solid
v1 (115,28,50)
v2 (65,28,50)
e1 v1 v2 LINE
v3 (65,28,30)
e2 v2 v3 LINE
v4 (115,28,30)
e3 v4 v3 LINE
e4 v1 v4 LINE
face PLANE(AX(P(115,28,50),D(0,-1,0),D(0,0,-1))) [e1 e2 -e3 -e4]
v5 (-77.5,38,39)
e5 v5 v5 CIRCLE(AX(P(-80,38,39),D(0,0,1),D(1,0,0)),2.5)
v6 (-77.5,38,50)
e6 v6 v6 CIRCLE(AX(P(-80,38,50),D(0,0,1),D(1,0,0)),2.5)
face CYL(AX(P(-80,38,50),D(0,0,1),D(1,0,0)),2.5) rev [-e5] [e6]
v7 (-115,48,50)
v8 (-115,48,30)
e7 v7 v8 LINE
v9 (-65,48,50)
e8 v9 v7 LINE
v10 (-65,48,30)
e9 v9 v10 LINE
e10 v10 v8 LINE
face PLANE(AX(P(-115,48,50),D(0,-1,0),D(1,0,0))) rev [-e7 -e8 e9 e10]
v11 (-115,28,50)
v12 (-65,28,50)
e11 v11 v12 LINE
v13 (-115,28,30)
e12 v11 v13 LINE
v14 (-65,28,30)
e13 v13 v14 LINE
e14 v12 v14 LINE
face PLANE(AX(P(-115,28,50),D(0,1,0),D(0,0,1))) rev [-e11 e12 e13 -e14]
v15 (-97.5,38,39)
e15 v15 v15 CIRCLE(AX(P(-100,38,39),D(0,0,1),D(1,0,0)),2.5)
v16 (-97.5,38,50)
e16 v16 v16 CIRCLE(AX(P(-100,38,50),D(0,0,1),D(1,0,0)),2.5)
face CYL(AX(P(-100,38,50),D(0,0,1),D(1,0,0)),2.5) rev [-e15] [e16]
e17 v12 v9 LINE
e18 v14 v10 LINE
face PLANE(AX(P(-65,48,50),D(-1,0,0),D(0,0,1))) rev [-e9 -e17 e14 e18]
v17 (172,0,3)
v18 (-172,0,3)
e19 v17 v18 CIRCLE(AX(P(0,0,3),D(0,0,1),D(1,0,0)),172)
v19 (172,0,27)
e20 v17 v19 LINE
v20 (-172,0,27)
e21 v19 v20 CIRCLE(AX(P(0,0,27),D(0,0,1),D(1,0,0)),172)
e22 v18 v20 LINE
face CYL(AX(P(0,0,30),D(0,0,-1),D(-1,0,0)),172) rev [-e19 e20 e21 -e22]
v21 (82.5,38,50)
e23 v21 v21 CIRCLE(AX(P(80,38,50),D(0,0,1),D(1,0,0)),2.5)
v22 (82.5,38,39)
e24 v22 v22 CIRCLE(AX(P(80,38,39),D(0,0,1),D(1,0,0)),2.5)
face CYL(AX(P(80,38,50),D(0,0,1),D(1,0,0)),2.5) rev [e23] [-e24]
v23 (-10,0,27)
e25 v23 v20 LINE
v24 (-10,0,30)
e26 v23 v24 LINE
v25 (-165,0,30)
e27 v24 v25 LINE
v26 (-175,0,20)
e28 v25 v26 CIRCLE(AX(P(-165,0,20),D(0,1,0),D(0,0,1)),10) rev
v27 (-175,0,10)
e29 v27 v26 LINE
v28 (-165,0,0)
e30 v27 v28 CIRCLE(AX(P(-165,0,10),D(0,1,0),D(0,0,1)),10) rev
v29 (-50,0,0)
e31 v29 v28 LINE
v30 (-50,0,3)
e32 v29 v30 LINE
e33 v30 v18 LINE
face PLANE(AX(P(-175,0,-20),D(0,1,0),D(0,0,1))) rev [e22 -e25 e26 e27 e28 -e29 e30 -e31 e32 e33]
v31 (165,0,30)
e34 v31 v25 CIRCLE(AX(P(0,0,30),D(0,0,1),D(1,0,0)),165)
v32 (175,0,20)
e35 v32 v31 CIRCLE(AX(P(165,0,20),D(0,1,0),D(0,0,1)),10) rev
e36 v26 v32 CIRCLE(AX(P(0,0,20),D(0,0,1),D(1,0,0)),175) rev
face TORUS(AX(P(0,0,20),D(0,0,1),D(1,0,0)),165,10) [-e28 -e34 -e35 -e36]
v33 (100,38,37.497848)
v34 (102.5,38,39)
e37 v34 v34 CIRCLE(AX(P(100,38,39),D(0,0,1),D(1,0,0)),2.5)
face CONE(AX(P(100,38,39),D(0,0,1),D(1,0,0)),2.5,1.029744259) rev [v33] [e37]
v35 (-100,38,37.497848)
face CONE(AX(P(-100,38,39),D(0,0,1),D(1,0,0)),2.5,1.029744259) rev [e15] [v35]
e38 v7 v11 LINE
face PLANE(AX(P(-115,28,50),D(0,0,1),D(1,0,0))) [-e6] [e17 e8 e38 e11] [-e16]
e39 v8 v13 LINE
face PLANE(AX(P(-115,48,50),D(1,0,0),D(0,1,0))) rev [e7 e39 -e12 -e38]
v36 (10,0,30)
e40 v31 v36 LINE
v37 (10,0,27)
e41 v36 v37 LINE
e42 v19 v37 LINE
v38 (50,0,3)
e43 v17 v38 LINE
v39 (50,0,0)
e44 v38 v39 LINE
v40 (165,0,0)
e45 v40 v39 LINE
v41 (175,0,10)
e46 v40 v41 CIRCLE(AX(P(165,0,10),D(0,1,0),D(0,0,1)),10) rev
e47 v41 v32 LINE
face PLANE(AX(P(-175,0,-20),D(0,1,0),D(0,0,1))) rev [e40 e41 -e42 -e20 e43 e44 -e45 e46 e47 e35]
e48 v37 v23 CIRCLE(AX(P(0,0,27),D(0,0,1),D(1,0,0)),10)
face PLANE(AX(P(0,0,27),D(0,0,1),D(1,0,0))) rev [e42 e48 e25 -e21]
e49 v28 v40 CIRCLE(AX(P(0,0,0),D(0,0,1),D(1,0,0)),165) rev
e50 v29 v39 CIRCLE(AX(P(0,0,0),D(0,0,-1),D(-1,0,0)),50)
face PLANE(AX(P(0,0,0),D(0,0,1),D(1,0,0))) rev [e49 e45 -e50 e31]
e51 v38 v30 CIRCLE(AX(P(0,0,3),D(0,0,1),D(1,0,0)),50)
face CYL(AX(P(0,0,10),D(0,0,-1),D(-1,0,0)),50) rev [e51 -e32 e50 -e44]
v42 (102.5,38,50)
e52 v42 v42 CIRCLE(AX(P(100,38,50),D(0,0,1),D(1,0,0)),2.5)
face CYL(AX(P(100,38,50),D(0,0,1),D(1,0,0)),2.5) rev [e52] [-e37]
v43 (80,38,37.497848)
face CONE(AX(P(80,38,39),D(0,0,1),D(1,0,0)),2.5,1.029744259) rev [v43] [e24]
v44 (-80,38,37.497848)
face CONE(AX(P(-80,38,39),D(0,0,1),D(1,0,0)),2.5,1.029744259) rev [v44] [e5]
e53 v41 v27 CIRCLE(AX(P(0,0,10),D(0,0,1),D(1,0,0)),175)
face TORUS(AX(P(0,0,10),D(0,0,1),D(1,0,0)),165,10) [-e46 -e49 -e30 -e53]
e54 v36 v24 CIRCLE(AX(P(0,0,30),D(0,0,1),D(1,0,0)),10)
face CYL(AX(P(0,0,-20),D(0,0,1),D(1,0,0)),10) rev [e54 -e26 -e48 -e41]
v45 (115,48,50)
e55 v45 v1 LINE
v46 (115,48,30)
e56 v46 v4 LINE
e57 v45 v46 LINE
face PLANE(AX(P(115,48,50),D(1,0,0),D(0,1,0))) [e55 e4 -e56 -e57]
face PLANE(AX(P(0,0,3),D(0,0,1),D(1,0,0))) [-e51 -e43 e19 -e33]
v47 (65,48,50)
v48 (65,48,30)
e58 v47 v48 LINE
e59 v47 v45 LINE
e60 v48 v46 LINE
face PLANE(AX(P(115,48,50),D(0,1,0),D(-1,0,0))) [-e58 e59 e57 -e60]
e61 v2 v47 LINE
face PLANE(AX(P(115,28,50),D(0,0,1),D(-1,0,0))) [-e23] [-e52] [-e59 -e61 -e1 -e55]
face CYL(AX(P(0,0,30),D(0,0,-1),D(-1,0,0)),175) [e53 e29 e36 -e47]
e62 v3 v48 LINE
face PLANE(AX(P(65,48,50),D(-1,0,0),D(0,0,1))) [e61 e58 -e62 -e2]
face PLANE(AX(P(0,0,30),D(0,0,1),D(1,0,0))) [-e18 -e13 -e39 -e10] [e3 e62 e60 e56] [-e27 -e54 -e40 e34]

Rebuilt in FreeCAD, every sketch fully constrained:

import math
import FreeCAD as App
import Part
import Sketcher

V = App.Vector
Q = App.Units.Quantity


def edges_at(feature, points):
    """Names of the edges that pass closest to the given points."""
    edges = feature.Shape.Edges
    near = lambda p: min(range(len(edges)), key=lambda i: edges[i].distToShape(Part.Vertex(*p))[0])
    return sorted({f"Edge{near(p) + 1}" for p in points})


def faces_at(feature, points):
    """Names of the faces that lie closest to the given points."""
    faces = feature.Shape.Faces
    near = lambda p: min(range(len(faces)), key=lambda i: faces[i].distToShape(Part.Vertex(*p))[0])
    return sorted({f"Face{near(p) + 1}" for p in points})

doc = App.newDocument("Part")
body = doc.addObject("PartDesign::Body", "Body")

sketch1 = doc.addObject("Sketcher::SketchObject", "Sketch")
body.addObject(sketch1)
sketch1.AttachmentSupport = (doc.XY_Plane, [""])
sketch1.MapMode = "FlatFace"
sketch1.addGeometry(Part.Circle(V(0, 0, 0), V(0, 0, 1), 175), False)
sketch1.addConstraint(Sketcher.Constraint("Coincident", 0, 3, -1, 1))
sketch1.addConstraint(Sketcher.Constraint("Diameter", 0, Q("350 mm")))
pad1 = doc.addObject("PartDesign::Pad", "Pad")
body.addObject(pad1)
pad1.Profile = sketch1
pad1.Length = 30

sketch2 = doc.addObject("Sketcher::SketchObject", "Sketch001")
body.addObject(sketch2)
sketch2.AttachmentSupport = (doc.XY_Plane, [""])
sketch2.MapMode = "FlatFace"
sketch2.AttachmentOffset = App.Placement(V(0, 0, 30), App.Rotation())
sketch2.addGeometry(Part.LineSegment(V(175, 0, 0), V(-175, 0, 0)), False)
sketch2.addGeometry(Part.ArcOfCircle(Part.Circle(V(0, 0, 0), V(0, 0, 1), 175), math.radians(180), math.radians(360)), False)
sketch2.addConstraint(Sketcher.Constraint("Coincident", 0, 1, 1, 2))
sketch2.addConstraint(Sketcher.Constraint("Coincident", 1, 1, 0, 2))
sketch2.addConstraint(Sketcher.Constraint("Horizontal", 0))
sketch2.addConstraint(Sketcher.Constraint("Coincident", 1, 3, -1, 1))
sketch2.addConstraint(Sketcher.Constraint("PointOnObject", 0, 1, -1))
sketch2.addConstraint(Sketcher.Constraint("Radius", 1, Q("175 mm")))
pocket1 = doc.addObject("PartDesign::Pocket", "Pocket")
body.addObject(pocket1)
pocket1.Profile = sketch2
pocket1.Length = 50
doc.recompute()

thickness = doc.addObject("PartDesign::Thickness", "Thickness")
body.addObject(thickness)
thickness.Base = (pocket1, faces_at(pocket1, [(0, 0, 15)]))
thickness.Value = 3
thickness.Reversed = True
thickness.Join = "Arc"

sketch3 = doc.addObject("Sketcher::SketchObject", "Sketch002")
body.addObject(sketch3)
sketch3.AttachmentSupport = (doc.XY_Plane, [""])
sketch3.MapMode = "FlatFace"
sketch3.AttachmentOffset = App.Placement(V(0, 0, 30), App.Rotation())
sketch3.addGeometry(Part.Circle(V(0, 0, 0), V(0, 0, 1), 10), False)
sketch3.addConstraint(Sketcher.Constraint("Coincident", 0, 3, -1, 1))
sketch3.addConstraint(Sketcher.Constraint("Diameter", 0, Q("20 mm")))
pocket2 = doc.addObject("PartDesign::Pocket", "Pocket001")
body.addObject(pocket2)
pocket2.Profile = sketch3
pocket2.Length = 50
doc.recompute()

fillet = doc.addObject("PartDesign::Fillet", "Fillet")
body.addObject(fillet)
fillet.Base = (pocket2, edges_at(pocket2, [(0, 175, 0), (0, 175, 30)]))
fillet.Radius = 10

sketch4 = doc.addObject("Sketcher::SketchObject", "Sketch003")
body.addObject(sketch4)
sketch4.AttachmentSupport = (doc.XY_Plane, [""])
sketch4.MapMode = "FlatFace"
sketch4.addGeometry(Part.Circle(V(0, 0, 0), V(0, 0, 1), 50), False)
sketch4.addConstraint(Sketcher.Constraint("Coincident", 0, 3, -1, 1))
sketch4.addConstraint(Sketcher.Constraint("Diameter", 0, Q("100 mm")))
pocket3 = doc.addObject("PartDesign::Pocket", "Pocket002")
body.addObject(pocket3)
pocket3.Profile = sketch4
pocket3.Length = 10
pocket3.Reversed = True

sketch5 = doc.addObject("Sketcher::SketchObject", "Sketch004")
body.addObject(sketch5)
sketch5.AttachmentSupport = (doc.XY_Plane, [""])
sketch5.MapMode = "FlatFace"
sketch5.AttachmentOffset = App.Placement(V(0, 0, 30), App.Rotation())
sketch5.addGeometry(Part.LineSegment(V(-115, 48, 0), V(-115, 28, 0)), False)
sketch5.addGeometry(Part.LineSegment(V(-115, 28, 0), V(-65, 28, 0)), False)
sketch5.addGeometry(Part.LineSegment(V(-65, 28, 0), V(-65, 48, 0)), False)
sketch5.addGeometry(Part.LineSegment(V(-65, 48, 0), V(-115, 48, 0)), False)
sketch5.addConstraint(Sketcher.Constraint("Coincident", 0, 2, 1, 1))
sketch5.addConstraint(Sketcher.Constraint("Coincident", 1, 2, 2, 1))
sketch5.addConstraint(Sketcher.Constraint("Coincident", 2, 2, 3, 1))
sketch5.addConstraint(Sketcher.Constraint("Coincident", 3, 2, 0, 1))
sketch5.addConstraint(Sketcher.Constraint("Vertical", 0))
sketch5.addConstraint(Sketcher.Constraint("Horizontal", 1))
sketch5.addConstraint(Sketcher.Constraint("Vertical", 2))
sketch5.addConstraint(Sketcher.Constraint("Horizontal", 3))
sketch5.addConstraint(Sketcher.Constraint("DistanceX", 1, 1, 1, 2, Q("50 mm")))
sketch5.addConstraint(Sketcher.Constraint("DistanceY", 0, 2, 0, 1, Q("20 mm")))
sketch5.addConstraint(Sketcher.Constraint("DistanceX", 0, 2, -1, 1, Q("115 mm")))
sketch5.addConstraint(Sketcher.Constraint("DistanceY", -1, 1, 0, 2, Q("28 mm")))
pad2 = doc.addObject("PartDesign::Pad", "Pad001")
body.addObject(pad2)
pad2.Profile = sketch5
pad2.Length = 20
doc.recompute()

mirrored = doc.addObject("PartDesign::Mirrored", "Mirrored")
body.addObject(mirrored)
mirrored.Originals = [pad2]
mirrored.MirrorPlane = (doc.YZ_Plane, [""])
body.Tip = mirrored

sketch6 = doc.addObject("Sketcher::SketchObject", "Sketch005")
body.addObject(sketch6)
sketch6.AttachmentSupport = (doc.XY_Plane, [""])
sketch6.MapMode = "FlatFace"
sketch6.AttachmentOffset = App.Placement(V(0, 0, 50), App.Rotation())
sketch6.addGeometry(Part.Circle(V(-100, 38, 0), V(0, 0, 1), 2.5), False)
sketch6.addGeometry(Part.Circle(V(-80, 38, 0), V(0, 0, 1), 2.5), False)
sketch6.addGeometry(Part.Circle(V(80, 38, 0), V(0, 0, 1), 2.5), False)
sketch6.addGeometry(Part.Circle(V(100, 38, 0), V(0, 0, 1), 2.5), False)
sketch6.addConstraint(Sketcher.Constraint("Equal", 0, 1))
sketch6.addConstraint(Sketcher.Constraint("Equal", 1, 2))
sketch6.addConstraint(Sketcher.Constraint("Equal", 2, 3))
sketch6.addConstraint(Sketcher.Constraint("Symmetric", 1, 3, 2, 3, -2))
sketch6.addConstraint(Sketcher.Constraint("Symmetric", 0, 3, 3, 3, -2))
sketch6.addConstraint(Sketcher.Constraint("Horizontal", 0, 3, 1, 3))
sketch6.addConstraint(Sketcher.Constraint("Diameter", 0, Q("5 mm")))
sketch6.addConstraint(Sketcher.Constraint("DistanceX", 0, 3, -1, 1, Q("100 mm")))
sketch6.addConstraint(Sketcher.Constraint("DistanceY", -1, 1, 0, 3, Q("38 mm")))
sketch6.addConstraint(Sketcher.Constraint("DistanceX", 1, 3, -1, 1, Q("80 mm")))
doc.recompute()
hole = doc.addObject("PartDesign::Hole", "Hole")
body.addObject(hole)
hole.Profile = sketch6
hole.ThreadType = "None"
hole.Diameter = 5
hole.DepthType = "Dimension"
hole.Depth = 11
hole.DrillPoint = "Angled"
hole.DrillPointAngle = 118

doc.recompute()
